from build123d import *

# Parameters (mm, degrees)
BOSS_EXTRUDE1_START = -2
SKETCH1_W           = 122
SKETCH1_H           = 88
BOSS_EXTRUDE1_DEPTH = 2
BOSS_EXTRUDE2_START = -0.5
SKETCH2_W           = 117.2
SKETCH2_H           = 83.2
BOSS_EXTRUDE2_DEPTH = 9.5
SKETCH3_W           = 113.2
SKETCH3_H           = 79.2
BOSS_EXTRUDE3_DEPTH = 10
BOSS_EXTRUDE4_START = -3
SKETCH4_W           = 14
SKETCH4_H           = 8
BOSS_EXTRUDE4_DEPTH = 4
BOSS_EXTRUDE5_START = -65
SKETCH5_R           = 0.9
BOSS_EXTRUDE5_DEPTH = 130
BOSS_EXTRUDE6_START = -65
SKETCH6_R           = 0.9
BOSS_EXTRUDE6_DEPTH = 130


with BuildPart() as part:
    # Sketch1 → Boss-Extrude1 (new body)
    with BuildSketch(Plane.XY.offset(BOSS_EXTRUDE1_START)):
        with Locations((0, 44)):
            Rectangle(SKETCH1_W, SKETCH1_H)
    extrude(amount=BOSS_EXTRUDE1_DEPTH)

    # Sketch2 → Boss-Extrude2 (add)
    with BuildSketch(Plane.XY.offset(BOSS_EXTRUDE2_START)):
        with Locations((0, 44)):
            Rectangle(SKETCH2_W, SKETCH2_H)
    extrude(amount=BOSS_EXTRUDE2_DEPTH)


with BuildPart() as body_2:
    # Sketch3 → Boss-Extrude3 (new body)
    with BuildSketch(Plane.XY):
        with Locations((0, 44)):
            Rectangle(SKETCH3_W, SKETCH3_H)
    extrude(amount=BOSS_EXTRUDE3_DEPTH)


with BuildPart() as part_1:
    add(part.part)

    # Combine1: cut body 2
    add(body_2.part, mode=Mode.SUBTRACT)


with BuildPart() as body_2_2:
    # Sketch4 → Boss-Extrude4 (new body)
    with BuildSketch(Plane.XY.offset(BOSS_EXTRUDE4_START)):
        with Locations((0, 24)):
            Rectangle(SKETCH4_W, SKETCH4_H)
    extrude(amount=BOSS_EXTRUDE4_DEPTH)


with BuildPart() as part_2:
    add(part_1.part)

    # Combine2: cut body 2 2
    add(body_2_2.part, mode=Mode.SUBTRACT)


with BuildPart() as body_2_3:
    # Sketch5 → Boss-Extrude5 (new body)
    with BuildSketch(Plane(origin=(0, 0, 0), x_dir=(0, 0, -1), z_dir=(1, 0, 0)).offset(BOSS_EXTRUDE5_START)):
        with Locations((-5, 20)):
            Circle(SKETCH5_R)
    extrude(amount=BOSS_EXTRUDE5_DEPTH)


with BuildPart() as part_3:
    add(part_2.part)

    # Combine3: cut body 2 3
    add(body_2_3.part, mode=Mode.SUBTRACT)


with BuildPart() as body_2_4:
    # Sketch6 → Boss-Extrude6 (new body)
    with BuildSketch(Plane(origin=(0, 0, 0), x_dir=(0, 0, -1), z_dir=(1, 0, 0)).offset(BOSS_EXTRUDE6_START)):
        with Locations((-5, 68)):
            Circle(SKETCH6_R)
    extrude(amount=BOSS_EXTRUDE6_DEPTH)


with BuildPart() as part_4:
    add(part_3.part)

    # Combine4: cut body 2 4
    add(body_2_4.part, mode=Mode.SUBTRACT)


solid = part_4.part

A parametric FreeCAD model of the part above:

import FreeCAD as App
import Part
import Sketcher

V = App.Vector
Q = App.Units.Quantity

doc = App.newDocument("Part")
body = doc.addObject("PartDesign::Body", "Body")

# Sketch on XY plane
sketch1 = doc.addObject("Sketcher::SketchObject", "Sketch")
body.addObject(sketch1)
sketch1.AttachmentSupport = (doc.XY_Plane, [""])
sketch1.MapMode = "FlatFace"
sketch1.AttachmentOffset = App.Placement(V(0, 0, -2), App.Rotation())
sketch1.addGeometry(Part.LineSegment(V(-61, 88, 0), V(-61, 0, 0)), False)
sketch1.addGeometry(Part.LineSegment(V(-61, 0, 0), V(61, 0, 0)), False)
sketch1.addGeometry(Part.LineSegment(V(61, 0, 0), V(61, 88, 0)), False)
sketch1.addGeometry(Part.LineSegment(V(61, 88, 0), V(-61, 88, 0)), False)
sketch1.addConstraint(Sketcher.Constraint("Coincident", 0, 2, 1, 1))
sketch1.addConstraint(Sketcher.Constraint("Coincident", 1, 2, 2, 1))
sketch1.addConstraint(Sketcher.Constraint("Coincident", 2, 2, 3, 1))
sketch1.addConstraint(Sketcher.Constraint("Coincident", 3, 2, 0, 1))
sketch1.addConstraint(Sketcher.Constraint("Vertical", 0))
sketch1.addConstraint(Sketcher.Constraint("Horizontal", 1))
sketch1.addConstraint(Sketcher.Constraint("Vertical", 2))
sketch1.addConstraint(Sketcher.Constraint("Horizontal", 3))
sketch1.addConstraint(Sketcher.Constraint("Symmetric", 0, 2, 1, 2, -1, 1))
sketch1.addConstraint(Sketcher.Constraint("DistanceX", 1, 1, 1, 2, Q("122 mm")))
sketch1.addConstraint(Sketcher.Constraint("DistanceY", 0, 2, 0, 1, Q("88 mm")))
pad1 = doc.addObject("PartDesign::Pad", "Pad")
body.addObject(pad1)
pad1.Profile = sketch1
pad1.Length = 2

# Sketch on XY plane
sketch2 = doc.addObject("Sketcher::SketchObject", "Sketch001")
body.addObject(sketch2)
sketch2.AttachmentSupport = (doc.XY_Plane, [""])
sketch2.MapMode = "FlatFace"
sketch2.AttachmentOffset = App.Placement(V(0, 0, -0.5), App.Rotation())
sketch2.addGeometry(Part.LineSegment(V(-58.6, 85.6, 0), V(-58.6, 2.4, 0)), False)
sketch2.addGeometry(Part.LineSegment(V(-58.6, 2.4, 0), V(58.6, 2.4, 0)), False)
sketch2.addGeometry(Part.LineSegment(V(58.6, 2.4, 0), V(58.6, 85.6, 0)), False)
sketch2.addGeometry(Part.LineSegment(V(58.6, 85.6, 0), V(-58.6, 85.6, 0)), False)
sketch2.addConstraint(Sketcher.Constraint("Coincident", 0, 2, 1, 1))
sketch2.addConstraint(Sketcher.Constraint("Coincident", 1, 2, 2, 1))
sketch2.addConstraint(Sketcher.Constraint("Coincident", 2, 2, 3, 1))
sketch2.addConstraint(Sketcher.Constraint("Coincident", 3, 2, 0, 1))
sketch2.addConstraint(Sketcher.Constraint("Vertical", 0))
sketch2.addConstraint(Sketcher.Constraint("Horizontal", 1))
sketch2.addConstraint(Sketcher.Constraint("Vertical", 2))
sketch2.addConstraint(Sketcher.Constraint("Horizontal", 3))
sketch2.addConstraint(Sketcher.Constraint("DistanceX", 1, 1, 1, 2, Q("117.2 mm")))
sketch2.addConstraint(Sketcher.Constraint("DistanceY", 0, 2, 0, 1, Q("83.2 mm")))
sketch2.addConstraint(Sketcher.Constraint("DistanceX", 0, 2, -1, 1, Q("58.6 mm")))
sketch2.addConstraint(Sketcher.Constraint("DistanceY", -1, 1, 0, 2, Q("2.4 mm")))
pad2 = doc.addObject("PartDesign::Pad", "Pad001")
body.addObject(pad2)
pad2.Profile = sketch2
pad2.Length = 9.5
body2 = doc.addObject("PartDesign::Body", "Body001")

# Sketch on XY plane
sketch3 = doc.addObject("Sketcher::SketchObject", "Sketch002")
body2.addObject(sketch3)
sketch3.AttachmentSupport = (doc.getObject("XY_Plane001"), [""])
sketch3.MapMode = "FlatFace"
sketch3.addGeometry(Part.LineSegment(V(-56.6, 83.6, 0), V(-56.6, 4.4, 0)), False)
sketch3.addGeometry(Part.LineSegment(V(-56.6, 4.4, 0), V(56.6, 4.4, 0)), False)
sketch3.addGeometry(Part.LineSegment(V(56.6, 4.4, 0), V(56.6, 83.6, 0)), False)
sketch3.addGeometry(Part.LineSegment(V(56.6, 83.6, 0), V(-56.6, 83.6, 0)), False)
sketch3.addConstraint(Sketcher.Constraint("Coincident", 0, 2, 1, 1))
sketch3.addConstraint(Sketcher.Constraint("Coincident", 1, 2, 2, 1))
sketch3.addConstraint(Sketcher.Constraint("Coincident", 2, 2, 3, 1))
sketch3.addConstraint(Sketcher.Constraint("Coincident", 3, 2, 0, 1))
sketch3.addConstraint(Sketcher.Constraint("Vertical", 0))
sketch3.addConstraint(Sketcher.Constraint("Horizontal", 1))
sketch3.addConstraint(Sketcher.Constraint("Vertical", 2))
sketch3.addConstraint(Sketcher.Constraint("Horizontal", 3))
sketch3.addConstraint(Sketcher.Constraint("DistanceX", 1, 1, 1, 2, Q("113.2 mm")))
sketch3.addConstraint(Sketcher.Constraint("DistanceY", 0, 2, 0, 1, Q("79.2 mm")))
sketch3.addConstraint(Sketcher.Constraint("DistanceX", 0, 2, -1, 1, Q("56.6 mm")))
sketch3.addConstraint(Sketcher.Constraint("DistanceY", -1, 1, 0, 2, Q("4.4 mm")))
pad3 = doc.addObject("PartDesign::Pad", "Pad002")
body2.addObject(pad3)
pad3.Profile = sketch3
pad3.Length = 10
doc.recompute()

boolean = doc.addObject("PartDesign::Boolean", "Boolean")
body.addObject(boolean)
boolean.Type = "Cut"
boolean.addObjects([body2])
body3 = doc.addObject("PartDesign::Body", "Body002")

# Sketch on XY plane
sketch4 = doc.addObject("Sketcher::SketchObject", "Sketch003")
body3.addObject(sketch4)
sketch4.AttachmentSupport = (doc.getObject("XY_Plane002"), [""])
sketch4.MapMode = "FlatFace"
sketch4.AttachmentOffset = App.Placement(V(0, 0, -3), App.Rotation())
sketch4.addGeometry(Part.LineSegment(V(-7, 28, 0), V(-7, 20, 0)), False)
sketch4.addGeometry(Part.LineSegment(V(-7, 20, 0), V(7, 20, 0)), False)
sketch4.addGeometry(Part.LineSegment(V(7, 20, 0), V(7, 28, 0)), False)
sketch4.addGeometry(Part.LineSegment(V(7, 28, 0), V(-7, 28, 0)), False)
sketch4.addConstraint(Sketcher.Constraint("Coincident", 0, 2, 1, 1))
sketch4.addConstraint(Sketcher.Constraint("Coincident", 1, 2, 2, 1))
sketch4.addConstraint(Sketcher.Constraint("Coincident", 2, 2, 3, 1))
sketch4.addConstraint(Sketcher.Constraint("Coincident", 3, 2, 0, 1))
sketch4.addConstraint(Sketcher.Constraint("Vertical", 0))
sketch4.addConstraint(Sketcher.Constraint("Horizontal", 1))
sketch4.addConstraint(Sketcher.Constraint("Vertical", 2))
sketch4.addConstraint(Sketcher.Constraint("Horizontal", 3))
sketch4.addConstraint(Sketcher.Constraint("DistanceX", 1, 1, 1, 2, Q("14 mm")))
sketch4.addConstraint(Sketcher.Constraint("DistanceY", 0, 2, 0, 1, Q("8 mm")))
sketch4.addConstraint(Sketcher.Constraint("DistanceX", 0, 2, -1, 1, Q("7 mm")))
sketch4.addConstraint(Sketcher.Constraint("DistanceY", -1, 1, 0, 2, Q("20 mm")))
pad4 = doc.addObject("PartDesign::Pad", "Pad003")
body3.addObject(pad4)
pad4.Profile = sketch4
pad4.Length = 4
doc.recompute()

boolean2 = doc.addObject("PartDesign::Boolean", "Boolean001")
body.addObject(boolean2)
boolean2.Type = "Cut"
boolean2.addObjects([body3])
body4 = doc.addObject("PartDesign::Body", "Body003")

# Sketch on YZ plane
sketch5 = doc.addObject("Sketcher::SketchObject", "Sketch004")
body4.addObject(sketch5)
sketch5.AttachmentSupport = (doc.getObject("YZ_Plane003"), [""])
sketch5.MapMode = "FlatFace"
sketch5.AttachmentOffset = App.Placement(V(0, 0, -65), App.Rotation())
sketch5.addGeometry(Part.Circle(V(20, 5, 0), V(0, 0, 1), 0.9), False)
sketch5.addConstraint(Sketcher.Constraint("Diameter", 0, Q("1.8 mm")))
sketch5.addConstraint(Sketcher.Constraint("DistanceX", -1, 1, 0, 3, Q("20 mm")))
sketch5.addConstraint(Sketcher.Constraint("DistanceY", -1, 1, 0, 3, Q("5 mm")))
pad5 = doc.addObject("PartDesign::Pad", "Pad004")
body4.addObject(pad5)
pad5.Profile = sketch5
pad5.Length = 130
doc.recompute()

boolean3 = doc.addObject("PartDesign::Boolean", "Boolean002")
body.addObject(boolean3)
boolean3.Type = "Cut"
boolean3.addObjects([body4])
body5 = doc.addObject("PartDesign::Body", "Body004")

# Sketch on YZ plane
sketch6 = doc.addObject("Sketcher::SketchObject", "Sketch005")
body5.addObject(sketch6)
sketch6.AttachmentSupport = (doc.getObject("YZ_Plane004"), [""])
sketch6.MapMode = "FlatFace"
sketch6.AttachmentOffset = App.Placement(V(0, 0, -65), App.Rotation())
sketch6.addGeometry(Part.Circle(V(68, 5, 0), V(0, 0, 1), 0.9), False)
sketch6.addConstraint(Sketcher.Constraint("Diameter", 0, Q("1.8 mm")))
sketch6.addConstraint(Sketcher.Constraint("DistanceX", -1, 1, 0, 3, Q("68 mm")))
sketch6.addConstraint(Sketcher.Constraint("DistanceY", -1, 1, 0, 3, Q("5 mm")))
pad6 = doc.addObject("PartDesign::Pad", "Pad005")
body5.addObject(pad6)
pad6.Profile = sketch6
pad6.Length = 130
doc.recompute()

boolean4 = doc.addObject("PartDesign::Boolean", "Boolean003")
body.addObject(boolean4)
boolean4.Type = "Cut"
boolean4.addObjects([body5])

doc.recompute()
